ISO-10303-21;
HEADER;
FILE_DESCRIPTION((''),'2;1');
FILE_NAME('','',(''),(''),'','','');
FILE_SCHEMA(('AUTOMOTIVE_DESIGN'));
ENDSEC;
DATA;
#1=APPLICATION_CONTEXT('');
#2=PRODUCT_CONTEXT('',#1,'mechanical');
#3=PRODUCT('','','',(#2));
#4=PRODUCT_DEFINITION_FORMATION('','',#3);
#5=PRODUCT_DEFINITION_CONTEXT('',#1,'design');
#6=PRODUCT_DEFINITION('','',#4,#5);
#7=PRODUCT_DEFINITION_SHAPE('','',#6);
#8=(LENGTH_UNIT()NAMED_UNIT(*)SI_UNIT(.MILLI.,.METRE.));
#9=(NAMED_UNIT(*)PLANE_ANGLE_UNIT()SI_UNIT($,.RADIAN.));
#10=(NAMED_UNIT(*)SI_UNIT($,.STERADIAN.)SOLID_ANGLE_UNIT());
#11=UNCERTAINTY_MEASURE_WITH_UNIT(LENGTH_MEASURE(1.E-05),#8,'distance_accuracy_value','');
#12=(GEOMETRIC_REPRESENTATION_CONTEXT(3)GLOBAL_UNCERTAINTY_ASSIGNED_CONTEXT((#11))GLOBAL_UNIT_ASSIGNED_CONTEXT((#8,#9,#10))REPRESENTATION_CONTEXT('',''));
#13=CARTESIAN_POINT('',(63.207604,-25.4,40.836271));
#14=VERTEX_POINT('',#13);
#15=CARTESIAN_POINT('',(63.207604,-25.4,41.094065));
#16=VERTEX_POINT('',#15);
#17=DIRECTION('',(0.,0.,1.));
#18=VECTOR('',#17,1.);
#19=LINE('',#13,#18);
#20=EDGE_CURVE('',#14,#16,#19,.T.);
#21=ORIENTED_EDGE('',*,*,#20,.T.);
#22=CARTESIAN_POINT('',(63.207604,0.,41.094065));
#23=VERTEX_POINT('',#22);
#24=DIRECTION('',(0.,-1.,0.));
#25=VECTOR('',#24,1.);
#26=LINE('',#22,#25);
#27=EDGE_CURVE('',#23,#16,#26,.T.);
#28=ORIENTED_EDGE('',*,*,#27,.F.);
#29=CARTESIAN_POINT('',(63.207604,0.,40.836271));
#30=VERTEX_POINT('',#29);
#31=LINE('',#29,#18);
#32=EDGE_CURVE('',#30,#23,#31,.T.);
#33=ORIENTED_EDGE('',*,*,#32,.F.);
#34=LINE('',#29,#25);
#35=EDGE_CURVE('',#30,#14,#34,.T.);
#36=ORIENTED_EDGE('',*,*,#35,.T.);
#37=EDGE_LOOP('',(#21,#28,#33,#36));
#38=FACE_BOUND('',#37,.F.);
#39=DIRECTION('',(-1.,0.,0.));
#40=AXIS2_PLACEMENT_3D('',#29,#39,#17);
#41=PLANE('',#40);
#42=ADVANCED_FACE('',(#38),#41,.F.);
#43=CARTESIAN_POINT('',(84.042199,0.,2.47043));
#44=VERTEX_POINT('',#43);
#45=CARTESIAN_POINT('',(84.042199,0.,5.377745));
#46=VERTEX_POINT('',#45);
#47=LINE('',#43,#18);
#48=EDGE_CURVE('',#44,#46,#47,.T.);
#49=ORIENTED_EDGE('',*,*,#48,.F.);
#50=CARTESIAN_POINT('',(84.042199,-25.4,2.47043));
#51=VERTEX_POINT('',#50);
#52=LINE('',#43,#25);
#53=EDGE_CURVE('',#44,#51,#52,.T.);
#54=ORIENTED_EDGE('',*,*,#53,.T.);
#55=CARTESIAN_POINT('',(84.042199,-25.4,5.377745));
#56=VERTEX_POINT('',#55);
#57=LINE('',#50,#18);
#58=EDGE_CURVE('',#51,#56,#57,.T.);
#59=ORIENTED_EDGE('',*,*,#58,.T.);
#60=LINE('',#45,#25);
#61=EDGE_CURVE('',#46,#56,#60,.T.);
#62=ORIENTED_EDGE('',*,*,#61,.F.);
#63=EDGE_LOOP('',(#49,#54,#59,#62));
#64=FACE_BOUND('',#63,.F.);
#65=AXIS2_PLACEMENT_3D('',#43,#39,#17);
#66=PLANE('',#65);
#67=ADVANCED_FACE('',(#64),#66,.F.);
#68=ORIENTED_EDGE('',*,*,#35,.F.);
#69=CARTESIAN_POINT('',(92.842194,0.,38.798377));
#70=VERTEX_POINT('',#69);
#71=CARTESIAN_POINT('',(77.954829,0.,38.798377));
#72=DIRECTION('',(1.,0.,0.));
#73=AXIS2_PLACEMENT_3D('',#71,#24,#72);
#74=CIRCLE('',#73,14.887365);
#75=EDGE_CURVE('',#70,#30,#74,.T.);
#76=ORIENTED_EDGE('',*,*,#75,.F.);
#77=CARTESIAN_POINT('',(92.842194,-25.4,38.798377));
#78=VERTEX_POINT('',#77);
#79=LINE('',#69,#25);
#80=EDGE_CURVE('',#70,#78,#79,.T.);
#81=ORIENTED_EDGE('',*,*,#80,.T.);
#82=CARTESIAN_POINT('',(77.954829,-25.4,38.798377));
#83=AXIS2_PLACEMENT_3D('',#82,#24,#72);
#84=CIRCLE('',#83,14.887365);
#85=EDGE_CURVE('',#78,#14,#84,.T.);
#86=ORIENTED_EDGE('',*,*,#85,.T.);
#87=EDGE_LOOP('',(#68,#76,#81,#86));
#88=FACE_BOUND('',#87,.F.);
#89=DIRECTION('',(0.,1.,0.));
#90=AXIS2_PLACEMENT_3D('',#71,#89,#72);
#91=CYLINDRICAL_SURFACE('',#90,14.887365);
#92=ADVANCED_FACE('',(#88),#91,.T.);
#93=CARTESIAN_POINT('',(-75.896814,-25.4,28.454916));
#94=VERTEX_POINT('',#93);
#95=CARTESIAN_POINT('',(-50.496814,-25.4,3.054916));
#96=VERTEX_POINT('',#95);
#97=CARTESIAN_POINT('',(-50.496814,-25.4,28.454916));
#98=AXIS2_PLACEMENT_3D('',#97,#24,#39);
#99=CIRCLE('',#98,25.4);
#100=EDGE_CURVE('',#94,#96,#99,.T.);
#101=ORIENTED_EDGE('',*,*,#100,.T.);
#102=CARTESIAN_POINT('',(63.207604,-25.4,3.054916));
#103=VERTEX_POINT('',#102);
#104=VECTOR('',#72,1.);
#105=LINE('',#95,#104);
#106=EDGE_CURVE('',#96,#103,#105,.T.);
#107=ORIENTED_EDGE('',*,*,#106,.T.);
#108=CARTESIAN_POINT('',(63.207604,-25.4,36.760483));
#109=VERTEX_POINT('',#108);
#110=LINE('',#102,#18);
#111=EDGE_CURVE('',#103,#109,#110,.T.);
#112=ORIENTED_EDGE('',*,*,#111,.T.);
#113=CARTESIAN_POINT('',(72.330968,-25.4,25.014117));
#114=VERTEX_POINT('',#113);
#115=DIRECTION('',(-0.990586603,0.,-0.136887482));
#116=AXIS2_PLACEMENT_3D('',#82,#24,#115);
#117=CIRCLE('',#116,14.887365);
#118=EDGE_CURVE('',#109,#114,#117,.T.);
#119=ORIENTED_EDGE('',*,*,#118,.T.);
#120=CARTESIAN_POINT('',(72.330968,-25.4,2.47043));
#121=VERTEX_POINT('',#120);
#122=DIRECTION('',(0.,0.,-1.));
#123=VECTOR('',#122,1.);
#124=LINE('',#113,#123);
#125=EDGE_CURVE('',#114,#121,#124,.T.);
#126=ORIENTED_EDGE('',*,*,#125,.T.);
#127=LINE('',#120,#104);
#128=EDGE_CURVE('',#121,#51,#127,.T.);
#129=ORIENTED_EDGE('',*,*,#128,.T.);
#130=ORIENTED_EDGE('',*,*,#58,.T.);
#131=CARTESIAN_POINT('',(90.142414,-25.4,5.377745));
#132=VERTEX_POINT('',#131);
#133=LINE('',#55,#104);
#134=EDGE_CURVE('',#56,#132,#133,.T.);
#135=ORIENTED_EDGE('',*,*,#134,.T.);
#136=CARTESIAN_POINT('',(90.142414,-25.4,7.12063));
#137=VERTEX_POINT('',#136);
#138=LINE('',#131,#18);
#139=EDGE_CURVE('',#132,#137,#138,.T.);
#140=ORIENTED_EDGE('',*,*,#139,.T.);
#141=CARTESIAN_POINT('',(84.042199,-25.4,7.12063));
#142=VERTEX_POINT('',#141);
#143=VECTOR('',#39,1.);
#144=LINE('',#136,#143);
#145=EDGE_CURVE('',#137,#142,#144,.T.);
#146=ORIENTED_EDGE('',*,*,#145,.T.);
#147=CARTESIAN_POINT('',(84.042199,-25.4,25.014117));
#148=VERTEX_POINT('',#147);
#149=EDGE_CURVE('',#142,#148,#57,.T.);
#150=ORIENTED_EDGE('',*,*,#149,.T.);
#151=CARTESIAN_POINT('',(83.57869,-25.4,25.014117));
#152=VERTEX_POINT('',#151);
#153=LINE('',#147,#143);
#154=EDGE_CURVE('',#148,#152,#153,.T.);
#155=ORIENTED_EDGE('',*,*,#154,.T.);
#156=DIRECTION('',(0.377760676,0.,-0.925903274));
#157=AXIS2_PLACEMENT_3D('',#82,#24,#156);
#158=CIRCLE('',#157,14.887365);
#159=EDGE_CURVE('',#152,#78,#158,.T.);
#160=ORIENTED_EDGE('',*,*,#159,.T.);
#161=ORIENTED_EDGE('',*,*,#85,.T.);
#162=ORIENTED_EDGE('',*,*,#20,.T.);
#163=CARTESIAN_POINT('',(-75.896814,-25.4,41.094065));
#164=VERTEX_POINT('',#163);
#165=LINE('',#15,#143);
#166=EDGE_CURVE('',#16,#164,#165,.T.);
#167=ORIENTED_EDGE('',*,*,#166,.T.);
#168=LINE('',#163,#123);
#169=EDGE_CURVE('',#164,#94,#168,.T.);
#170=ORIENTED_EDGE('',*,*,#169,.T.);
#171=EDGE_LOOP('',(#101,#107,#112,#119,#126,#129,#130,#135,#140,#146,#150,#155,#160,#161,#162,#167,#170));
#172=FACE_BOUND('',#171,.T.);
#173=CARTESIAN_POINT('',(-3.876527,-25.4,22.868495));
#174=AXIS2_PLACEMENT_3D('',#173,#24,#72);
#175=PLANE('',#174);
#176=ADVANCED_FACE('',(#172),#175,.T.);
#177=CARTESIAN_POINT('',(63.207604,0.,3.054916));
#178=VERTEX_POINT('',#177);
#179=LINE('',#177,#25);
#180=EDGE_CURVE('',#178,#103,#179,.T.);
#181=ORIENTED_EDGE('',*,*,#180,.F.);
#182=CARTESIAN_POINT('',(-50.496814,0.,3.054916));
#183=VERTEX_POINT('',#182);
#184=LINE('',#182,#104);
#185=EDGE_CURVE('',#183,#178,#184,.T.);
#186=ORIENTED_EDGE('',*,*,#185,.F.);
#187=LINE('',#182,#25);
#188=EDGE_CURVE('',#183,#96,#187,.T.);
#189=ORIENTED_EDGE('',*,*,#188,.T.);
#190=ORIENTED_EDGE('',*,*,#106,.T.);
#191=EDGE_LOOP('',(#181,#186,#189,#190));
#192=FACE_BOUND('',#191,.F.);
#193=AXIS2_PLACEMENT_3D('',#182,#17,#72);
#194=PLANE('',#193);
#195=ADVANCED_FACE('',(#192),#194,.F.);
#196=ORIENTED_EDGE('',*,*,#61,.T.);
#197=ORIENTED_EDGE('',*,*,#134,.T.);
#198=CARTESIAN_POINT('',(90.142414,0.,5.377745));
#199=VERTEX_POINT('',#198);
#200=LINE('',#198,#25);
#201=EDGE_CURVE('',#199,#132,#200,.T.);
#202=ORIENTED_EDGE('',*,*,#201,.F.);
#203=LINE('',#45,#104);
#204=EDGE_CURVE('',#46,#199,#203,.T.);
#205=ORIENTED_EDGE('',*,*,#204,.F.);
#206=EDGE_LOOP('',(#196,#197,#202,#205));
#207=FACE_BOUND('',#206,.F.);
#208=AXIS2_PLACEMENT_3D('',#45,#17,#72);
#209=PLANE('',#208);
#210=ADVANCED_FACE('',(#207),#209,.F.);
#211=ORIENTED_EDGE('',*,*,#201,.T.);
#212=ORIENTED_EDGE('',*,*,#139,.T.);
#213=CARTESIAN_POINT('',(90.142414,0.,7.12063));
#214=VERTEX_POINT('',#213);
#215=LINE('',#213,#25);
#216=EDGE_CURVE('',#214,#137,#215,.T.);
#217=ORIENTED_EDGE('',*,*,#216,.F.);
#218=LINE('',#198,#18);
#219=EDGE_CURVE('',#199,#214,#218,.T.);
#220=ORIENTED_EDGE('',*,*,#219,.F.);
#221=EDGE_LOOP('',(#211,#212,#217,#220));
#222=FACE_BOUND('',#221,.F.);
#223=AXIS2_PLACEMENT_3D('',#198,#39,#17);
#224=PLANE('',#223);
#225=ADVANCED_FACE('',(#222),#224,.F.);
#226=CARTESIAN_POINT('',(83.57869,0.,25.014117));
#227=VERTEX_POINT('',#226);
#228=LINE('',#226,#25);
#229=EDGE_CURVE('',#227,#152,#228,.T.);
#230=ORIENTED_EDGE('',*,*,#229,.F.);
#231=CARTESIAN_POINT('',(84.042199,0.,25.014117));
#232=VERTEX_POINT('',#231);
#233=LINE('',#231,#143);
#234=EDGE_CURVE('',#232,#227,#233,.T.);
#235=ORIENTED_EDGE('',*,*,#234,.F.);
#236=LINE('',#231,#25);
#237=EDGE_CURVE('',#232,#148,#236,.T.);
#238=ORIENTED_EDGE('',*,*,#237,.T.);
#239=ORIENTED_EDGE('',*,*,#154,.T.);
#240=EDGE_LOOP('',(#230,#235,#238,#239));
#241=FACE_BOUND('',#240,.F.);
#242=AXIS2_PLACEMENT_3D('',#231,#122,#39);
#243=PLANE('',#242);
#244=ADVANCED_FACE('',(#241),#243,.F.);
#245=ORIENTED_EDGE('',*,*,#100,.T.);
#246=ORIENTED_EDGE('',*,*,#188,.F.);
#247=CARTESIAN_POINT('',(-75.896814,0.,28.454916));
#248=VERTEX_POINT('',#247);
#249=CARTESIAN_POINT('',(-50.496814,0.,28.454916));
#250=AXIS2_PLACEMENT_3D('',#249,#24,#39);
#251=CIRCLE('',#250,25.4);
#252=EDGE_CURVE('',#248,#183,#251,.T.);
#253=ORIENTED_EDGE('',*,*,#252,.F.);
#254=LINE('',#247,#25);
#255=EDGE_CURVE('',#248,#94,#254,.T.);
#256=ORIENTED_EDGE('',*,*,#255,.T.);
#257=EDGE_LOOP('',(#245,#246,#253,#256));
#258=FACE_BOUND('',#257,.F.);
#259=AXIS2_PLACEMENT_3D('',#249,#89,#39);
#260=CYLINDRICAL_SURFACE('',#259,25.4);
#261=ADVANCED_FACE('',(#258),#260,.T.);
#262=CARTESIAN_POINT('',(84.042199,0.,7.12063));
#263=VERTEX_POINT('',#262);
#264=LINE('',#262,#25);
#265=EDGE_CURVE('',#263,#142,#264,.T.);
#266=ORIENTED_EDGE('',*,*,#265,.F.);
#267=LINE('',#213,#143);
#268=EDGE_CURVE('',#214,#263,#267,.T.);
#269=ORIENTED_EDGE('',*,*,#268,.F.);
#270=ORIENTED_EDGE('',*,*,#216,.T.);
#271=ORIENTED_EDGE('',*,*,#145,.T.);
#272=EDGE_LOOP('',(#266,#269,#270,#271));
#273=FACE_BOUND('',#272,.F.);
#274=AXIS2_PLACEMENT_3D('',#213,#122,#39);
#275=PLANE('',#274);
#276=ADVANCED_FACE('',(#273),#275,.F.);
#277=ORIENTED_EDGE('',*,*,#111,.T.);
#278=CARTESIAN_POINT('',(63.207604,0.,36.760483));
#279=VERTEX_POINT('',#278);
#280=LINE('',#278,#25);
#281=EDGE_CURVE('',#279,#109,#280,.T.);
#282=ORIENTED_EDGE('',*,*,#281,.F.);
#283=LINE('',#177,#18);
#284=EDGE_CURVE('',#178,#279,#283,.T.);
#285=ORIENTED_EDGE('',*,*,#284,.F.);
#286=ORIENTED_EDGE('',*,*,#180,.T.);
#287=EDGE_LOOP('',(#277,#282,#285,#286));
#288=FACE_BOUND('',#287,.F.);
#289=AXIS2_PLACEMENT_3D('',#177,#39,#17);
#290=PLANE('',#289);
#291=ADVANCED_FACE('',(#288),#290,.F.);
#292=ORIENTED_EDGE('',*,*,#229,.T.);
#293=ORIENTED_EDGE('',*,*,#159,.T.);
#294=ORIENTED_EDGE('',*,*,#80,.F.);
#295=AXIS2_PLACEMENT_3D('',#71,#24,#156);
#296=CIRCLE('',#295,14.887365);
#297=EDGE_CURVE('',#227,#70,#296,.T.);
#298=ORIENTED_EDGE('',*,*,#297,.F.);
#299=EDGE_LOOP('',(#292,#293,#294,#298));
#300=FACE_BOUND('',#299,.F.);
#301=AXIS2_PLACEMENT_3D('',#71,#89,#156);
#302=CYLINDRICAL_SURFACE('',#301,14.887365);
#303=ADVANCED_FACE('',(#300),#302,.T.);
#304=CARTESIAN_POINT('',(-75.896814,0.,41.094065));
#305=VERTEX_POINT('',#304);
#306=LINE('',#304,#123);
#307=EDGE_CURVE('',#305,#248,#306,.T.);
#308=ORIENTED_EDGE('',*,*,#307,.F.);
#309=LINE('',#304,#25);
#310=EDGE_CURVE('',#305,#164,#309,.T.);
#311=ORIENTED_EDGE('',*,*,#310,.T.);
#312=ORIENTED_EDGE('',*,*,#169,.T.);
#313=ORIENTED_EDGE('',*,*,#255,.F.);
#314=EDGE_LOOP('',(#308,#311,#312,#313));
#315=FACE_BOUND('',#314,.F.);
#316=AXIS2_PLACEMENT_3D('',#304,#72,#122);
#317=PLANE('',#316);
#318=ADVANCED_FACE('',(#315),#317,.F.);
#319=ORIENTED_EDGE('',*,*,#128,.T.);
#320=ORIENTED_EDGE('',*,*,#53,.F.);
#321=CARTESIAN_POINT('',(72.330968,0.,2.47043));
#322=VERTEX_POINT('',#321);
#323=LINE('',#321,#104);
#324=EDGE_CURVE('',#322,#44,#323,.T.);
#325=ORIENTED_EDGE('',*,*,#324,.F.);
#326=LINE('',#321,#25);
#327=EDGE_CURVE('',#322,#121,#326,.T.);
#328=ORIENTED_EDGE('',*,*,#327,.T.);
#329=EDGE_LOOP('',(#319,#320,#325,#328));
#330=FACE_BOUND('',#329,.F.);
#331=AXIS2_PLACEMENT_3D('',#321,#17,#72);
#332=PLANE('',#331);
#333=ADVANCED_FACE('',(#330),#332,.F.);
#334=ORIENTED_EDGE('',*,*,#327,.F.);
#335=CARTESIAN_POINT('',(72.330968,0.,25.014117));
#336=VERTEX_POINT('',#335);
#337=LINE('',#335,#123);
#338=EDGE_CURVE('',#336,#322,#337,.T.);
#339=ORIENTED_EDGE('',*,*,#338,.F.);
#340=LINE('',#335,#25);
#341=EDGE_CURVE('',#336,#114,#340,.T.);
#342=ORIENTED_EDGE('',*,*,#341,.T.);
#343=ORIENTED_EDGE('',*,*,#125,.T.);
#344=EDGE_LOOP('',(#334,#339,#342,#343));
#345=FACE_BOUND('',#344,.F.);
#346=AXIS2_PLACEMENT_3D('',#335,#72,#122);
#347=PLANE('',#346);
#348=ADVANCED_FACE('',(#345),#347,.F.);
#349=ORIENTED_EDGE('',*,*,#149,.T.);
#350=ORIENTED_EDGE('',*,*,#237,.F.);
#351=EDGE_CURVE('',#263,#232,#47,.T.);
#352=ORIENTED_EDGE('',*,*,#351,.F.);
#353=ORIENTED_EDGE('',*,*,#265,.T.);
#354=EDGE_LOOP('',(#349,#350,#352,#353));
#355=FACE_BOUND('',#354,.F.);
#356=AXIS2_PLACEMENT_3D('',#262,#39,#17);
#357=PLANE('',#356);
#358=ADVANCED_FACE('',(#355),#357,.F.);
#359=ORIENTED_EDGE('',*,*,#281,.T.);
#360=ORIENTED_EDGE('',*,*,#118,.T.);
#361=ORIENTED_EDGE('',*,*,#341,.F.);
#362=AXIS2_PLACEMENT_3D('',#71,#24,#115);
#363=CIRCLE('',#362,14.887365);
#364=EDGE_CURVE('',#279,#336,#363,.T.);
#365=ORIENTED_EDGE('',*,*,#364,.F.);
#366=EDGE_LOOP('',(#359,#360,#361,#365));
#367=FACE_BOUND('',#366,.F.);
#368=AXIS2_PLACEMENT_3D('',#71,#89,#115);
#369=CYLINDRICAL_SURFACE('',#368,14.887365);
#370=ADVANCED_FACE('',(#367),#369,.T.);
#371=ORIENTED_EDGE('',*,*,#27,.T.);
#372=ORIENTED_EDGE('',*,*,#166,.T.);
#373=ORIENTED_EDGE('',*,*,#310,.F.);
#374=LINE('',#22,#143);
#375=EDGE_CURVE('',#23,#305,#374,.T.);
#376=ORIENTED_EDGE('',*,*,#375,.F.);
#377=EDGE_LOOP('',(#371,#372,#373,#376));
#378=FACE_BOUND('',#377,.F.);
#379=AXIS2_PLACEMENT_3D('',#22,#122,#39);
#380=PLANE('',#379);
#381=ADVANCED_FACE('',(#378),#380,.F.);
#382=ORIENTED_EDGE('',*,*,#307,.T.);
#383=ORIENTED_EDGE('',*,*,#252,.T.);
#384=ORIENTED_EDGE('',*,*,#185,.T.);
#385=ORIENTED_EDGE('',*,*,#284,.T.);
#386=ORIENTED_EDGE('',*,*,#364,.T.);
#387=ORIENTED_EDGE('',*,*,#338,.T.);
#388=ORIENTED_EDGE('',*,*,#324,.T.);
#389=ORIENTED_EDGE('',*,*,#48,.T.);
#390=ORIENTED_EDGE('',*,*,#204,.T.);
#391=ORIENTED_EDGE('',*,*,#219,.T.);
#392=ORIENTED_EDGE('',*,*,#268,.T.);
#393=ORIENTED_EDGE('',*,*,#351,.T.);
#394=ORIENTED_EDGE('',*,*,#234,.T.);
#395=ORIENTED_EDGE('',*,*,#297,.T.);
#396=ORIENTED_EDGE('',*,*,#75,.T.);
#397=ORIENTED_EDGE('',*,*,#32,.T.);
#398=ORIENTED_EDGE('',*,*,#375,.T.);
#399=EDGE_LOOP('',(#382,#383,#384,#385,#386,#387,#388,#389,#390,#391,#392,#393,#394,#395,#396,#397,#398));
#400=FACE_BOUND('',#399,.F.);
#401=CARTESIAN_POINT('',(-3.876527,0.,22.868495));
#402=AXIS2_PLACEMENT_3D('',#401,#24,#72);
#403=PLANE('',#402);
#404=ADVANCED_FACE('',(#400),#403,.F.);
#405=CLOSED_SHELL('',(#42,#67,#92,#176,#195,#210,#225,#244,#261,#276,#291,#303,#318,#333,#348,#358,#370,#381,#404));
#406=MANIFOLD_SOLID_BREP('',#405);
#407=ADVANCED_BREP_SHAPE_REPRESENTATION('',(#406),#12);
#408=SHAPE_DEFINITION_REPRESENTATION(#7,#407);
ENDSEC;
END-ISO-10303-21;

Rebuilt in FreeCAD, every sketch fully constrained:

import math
import FreeCAD as App
import Part
import Sketcher
Q = App.Units.Quantity

doc = App.newDocument("Part")
params = doc.addObject("Spreadsheet::Sheet", "Params")
for row, (alias, value) in enumerate([
    ("sketch1_radius", "1 in"),
    ("pad1_length", "1 in"),
], start=1):
    params.set(f"A{row}", alias)
    params.set(f"B{row}", "=" + value)
    params.setAlias(f"B{row}", alias)

body = doc.addObject("PartDesign::Body", "Body")

sketch1 = doc.addObject("Sketcher::SketchObject", "Sketch")
body.addObject(sketch1)
sketch1.AttachmentSupport = (doc.XZ_Plane, [""])
sketch1.MapMode = "FlatFace"
sketch1.addGeometry(Part.LineSegment(App.Vector(63.21, 40.84, 0), App.Vector(63.21, 41.09, 0)), False)
sketch1.addGeometry(Part.LineSegment(App.Vector(63.21, 41.09, 0), App.Vector(-75.9, 41.09, 0)), False)
sketch1.addGeometry(Part.LineSegment(App.Vector(-75.9, 41.09, 0), App.Vector(-75.9, 28.45, 0)), False)
sketch1.addGeometry(Part.ArcOfCircle(Part.Circle(App.Vector(-50.5, 28.45, 0), App.Vector(0, 0, 1), 25.4), math.radians(180), math.radians(270)), False)
sketch1.addGeometry(Part.LineSegment(App.Vector(-50.5, 3.05, 0), App.Vector(63.21, 3.05, 0)), False)
sketch1.addGeometry(Part.LineSegment(App.Vector(63.21, 3.05, 0), App.Vector(63.21, 36.76, 0)), False)
sketch1.addGeometry(Part.ArcOfCircle(Part.Circle(App.Vector(77.95, 38.8, 0), App.Vector(0, 0, 1), 14.89), math.radians(-172), math.radians(-112)), False)
sketch1.addGeometry(Part.LineSegment(App.Vector(72.33, 25.01, 0), App.Vector(72.33, 2.47, 0)), False)
sketch1.addGeometry(Part.LineSegment(App.Vector(72.33, 2.47, 0), App.Vector(84.04, 2.47, 0)), False)
sketch1.addGeometry(Part.LineSegment(App.Vector(84.04, 2.47, 0), App.Vector(84.04, 5.38, 0)), False)
sketch1.addGeometry(Part.LineSegment(App.Vector(84.04, 5.38, 0), App.Vector(90.14, 5.38, 0)), False)
sketch1.addGeometry(Part.LineSegment(App.Vector(90.14, 5.38, 0), App.Vector(90.14, 7.12, 0)), False)
sketch1.addGeometry(Part.LineSegment(App.Vector(90.14, 7.12, 0), App.Vector(84.04, 7.12, 0)), False)
sketch1.addGeometry(Part.LineSegment(App.Vector(84.04, 7.12, 0), App.Vector(84.04, 25.01, 0)), False)
sketch1.addGeometry(Part.LineSegment(App.Vector(84.04, 25.01, 0), App.Vector(83.58, 25.01, 0)), False)
sketch1.addGeometry(Part.ArcOfCircle(Part.Circle(App.Vector(77.95, 38.8, 0), App.Vector(0, 0, 1), 14.89), math.radians(-68), math.radians(0)), False)
sketch1.addGeometry(Part.ArcOfCircle(Part.Circle(App.Vector(77.95, 38.8, 0), App.Vector(0, 0, 1), 14.89), math.radians(0), math.radians(172)), False)
sketch1.addConstraint(Sketcher.Constraint("Coincident", 0, 2, 1, 1))
sketch1.addConstraint(Sketcher.Constraint("Coincident", 1, 2, 2, 1))
sketch1.addConstraint(Sketcher.Constraint("Tangent", 2, 2, 3, 1))
sketch1.addConstraint(Sketcher.Constraint("Tangent", 3, 2, 4, 1))
sketch1.addConstraint(Sketcher.Constraint("Coincident", 4, 2, 5, 1))
sketch1.addConstraint(Sketcher.Constraint("Coincident", 5, 2, 6, 1))
sketch1.addConstraint(Sketcher.Constraint("Coincident", 6, 2, 7, 1))
sketch1.addConstraint(Sketcher.Constraint("Coincident", 7, 2, 8, 1))
sketch1.addConstraint(Sketcher.Constraint("Coincident", 8, 2, 9, 1))
sketch1.addConstraint(Sketcher.Constraint("Coincident", 9, 2, 10, 1))
sketch1.addConstraint(Sketcher.Constraint("Coincident", 10, 2, 11, 1))
sketch1.addConstraint(Sketcher.Constraint("Coincident", 11, 2, 12, 1))
sketch1.addConstraint(Sketcher.Constraint("Coincident", 12, 2, 13, 1))
sketch1.addConstraint(Sketcher.Constraint("Coincident", 13, 2, 14, 1))
sketch1.addConstraint(Sketcher.Constraint("Coincident", 14, 2, 15, 1))
sketch1.addConstraint(Sketcher.Constraint("Tangent", 15, 2, 16, 1))
sketch1.addConstraint(Sketcher.Constraint("Coincident", 16, 2, 0, 1))
sketch1.addConstraint(Sketcher.Constraint("Vertical", 0))
sketch1.addConstraint(Sketcher.Constraint("Horizontal", 1))
sketch1.addConstraint(Sketcher.Constraint("Vertical", 2))
sketch1.addConstraint(Sketcher.Constraint("Horizontal", 4))
sketch1.addConstraint(Sketcher.Constraint("Vertical", 5))
sketch1.addConstraint(Sketcher.Constraint("Vertical", 7))
sketch1.addConstraint(Sketcher.Constraint("Horizontal", 8))
sketch1.addConstraint(Sketcher.Constraint("Vertical", 9))
sketch1.addConstraint(Sketcher.Constraint("Horizontal", 10))
sketch1.addConstraint(Sketcher.Constraint("Vertical", 11))
sketch1.addConstraint(Sketcher.Constraint("Horizontal", 12))
sketch1.addConstraint(Sketcher.Constraint("Vertical", 13))
sketch1.addConstraint(Sketcher.Constraint("Horizontal", 14))
sketch1.addConstraint(Sketcher.Constraint("Coincident", 15, 3, 6, 3))
sketch1.addConstraint(Sketcher.Constraint("Equal", 6, 15))
sketch1.addConstraint(Sketcher.Constraint("Equal", 15, 16))
sketch1.addConstraint(Sketcher.Constraint("Horizontal", 6, 2, 13, 2))
sketch1.addConstraint(Sketcher.Constraint("Horizontal", 16, 3, 15, 2))
sketch1.addConstraint(Sketcher.Constraint("Vertical", 0, 2, 4, 2))
sketch1.addConstraint(Sketcher.Constraint("Vertical", 9, 2, 12, 2))
sketch1.addConstraint(Sketcher.Constraint("Radius", 3, Q("1 in")))
sketch1.addConstraint(Sketcher.Constraint("Radius", 6, Q("14.887365 mm")))
sketch1.addConstraint(Sketcher.Constraint("DistanceX", 1, 2, 1, 1, Q("139.104419 mm")))
sketch1.addConstraint(Sketcher.Constraint("DistanceX", 8, 1, 8, 2, Q("11.711231 mm")))
sketch1.addConstraint(Sketcher.Constraint("DistanceX", 14, 2, 14, 1, Q("0.463509 mm")))
sketch1.addConstraint(Sketcher.Constraint("DistanceY", 2, 2, 2, 1, Q("12.639149 mm")))
sketch1.addConstraint(Sketcher.Constraint("DistanceX", -1, 1, 8, 2, Q("84.042199 mm")))
sketch1.addConstraint(Sketcher.Constraint("DistanceY", 8, 2, 11, 2, Q("4.6502 mm")))
sketch1.addConstraint(Sketcher.Constraint("DistanceX", 10, 1, 10, 2, Q("6.100215 mm")))
sketch1.addConstraint(Sketcher.Constraint("DistanceY", 0, 1, 0, 2, Q("0.257794 mm")))
sketch1.addConstraint(Sketcher.Constraint("DistanceY", 5, 1, 5, 2, Q("33.705567 mm")))
sketch1.addConstraint(Sketcher.Constraint("DistanceY", 7, 2, 7, 1, Q("22.543687 mm")))
sketch1.addConstraint(Sketcher.Constraint("DistanceY", 9, 1, 9, 2, Q("2.907316 mm")))
sketch1.addConstraint(Sketcher.Constraint("DistanceY", -1, 1, 7, 2, Q("2.47043 mm")))
sketch1.setExpression("Constraints[37]", "Params.sketch1_radius")
pad1 = doc.addObject("PartDesign::Pad", "Pad")
body.addObject(pad1)
pad1.Profile = sketch1
pad1.setExpression("Length", "Params.pad1_length")

doc.recompute()
